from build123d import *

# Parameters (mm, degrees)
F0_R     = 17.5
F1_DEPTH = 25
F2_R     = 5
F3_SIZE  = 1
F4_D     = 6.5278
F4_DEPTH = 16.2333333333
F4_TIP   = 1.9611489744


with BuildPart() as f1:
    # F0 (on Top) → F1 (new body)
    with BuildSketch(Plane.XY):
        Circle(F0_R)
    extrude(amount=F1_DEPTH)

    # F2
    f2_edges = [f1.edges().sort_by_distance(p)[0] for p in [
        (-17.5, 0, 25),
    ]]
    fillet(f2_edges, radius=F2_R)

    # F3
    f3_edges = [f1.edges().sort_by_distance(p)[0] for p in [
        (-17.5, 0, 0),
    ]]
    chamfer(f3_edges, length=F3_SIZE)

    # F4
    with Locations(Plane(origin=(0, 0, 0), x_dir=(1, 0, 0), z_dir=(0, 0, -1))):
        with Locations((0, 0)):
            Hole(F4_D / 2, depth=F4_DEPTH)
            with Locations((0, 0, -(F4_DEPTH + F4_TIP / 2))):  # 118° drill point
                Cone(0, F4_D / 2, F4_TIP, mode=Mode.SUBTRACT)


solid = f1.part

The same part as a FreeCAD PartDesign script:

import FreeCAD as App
import Part
import Sketcher
from FreeCAD import Vector


def edges_at(feature, points):
    """Names of the edges that pass closest to the given points."""
    edges = feature.Shape.Edges
    near = lambda p: min(range(len(edges)), key=lambda i: edges[i].distToShape(Part.Vertex(*p))[0])
    return sorted({f"Edge{near(p) + 1}" for p in points})

doc = App.newDocument("Part")
body = doc.addObject("PartDesign::Body", "Body")

# Sketch on XY plane
sketch1 = body.newObject("Sketcher::SketchObject", "Sketch")
sketch1.AttachmentSupport = (doc.getObject("XY_Plane"), [""])
sketch1.MapMode = "FlatFace"
sketch1.addGeometry(Part.Circle(Vector(0, 0, 0), Vector(0, 0, 1), 18), False)
sketch1.addConstraint([
    Sketcher.Constraint("Coincident", 0, 3, -1, 1),
    Sketcher.Constraint("Diameter", 0, 35.0),
])
pad1 = body.newObject("PartDesign::Pad", "Pad")
pad1.Profile = sketch1
pad1.Length = 25
doc.recompute()

fillet = body.newObject("PartDesign::Fillet", "Fillet")
fillet.Base = (pad1, edges_at(pad1, [(-17.5, 0, 25)]))
fillet.Radius = 5
doc.recompute()

chamfer = body.newObject("PartDesign::Chamfer", "Chamfer")
chamfer.Base = (fillet, edges_at(fillet, [(-17.5, 0, 0)]))
chamfer.Size = 1

# Sketch on XY plane
sketch2 = body.newObject("Sketcher::SketchObject", "Sketch001")
sketch2.AttachmentSupport = (doc.getObject("XY_Plane"), [""])
sketch2.MapMode = "FlatFace"
sketch2.addGeometry(Part.Circle(Vector(0, 0, 0), Vector(0, 0, 1), 3.3), False)
sketch2.addConstraint([
    Sketcher.Constraint("Coincident", 0, 3, -1, 1),
    Sketcher.Constraint("Diameter", 0, 6.5278),
])
doc.recompute()
hole = body.newObject("PartDesign::Hole", "Hole")
hole.Profile = sketch2
hole.ThreadType = "None"
hole.Diameter = 6.5278
hole.DepthType = "Dimension"
hole.Depth = 16.233333
hole.DrillPoint = "Angled"
hole.DrillPointAngle = 118
hole.Reversed = True

doc.recompute()
